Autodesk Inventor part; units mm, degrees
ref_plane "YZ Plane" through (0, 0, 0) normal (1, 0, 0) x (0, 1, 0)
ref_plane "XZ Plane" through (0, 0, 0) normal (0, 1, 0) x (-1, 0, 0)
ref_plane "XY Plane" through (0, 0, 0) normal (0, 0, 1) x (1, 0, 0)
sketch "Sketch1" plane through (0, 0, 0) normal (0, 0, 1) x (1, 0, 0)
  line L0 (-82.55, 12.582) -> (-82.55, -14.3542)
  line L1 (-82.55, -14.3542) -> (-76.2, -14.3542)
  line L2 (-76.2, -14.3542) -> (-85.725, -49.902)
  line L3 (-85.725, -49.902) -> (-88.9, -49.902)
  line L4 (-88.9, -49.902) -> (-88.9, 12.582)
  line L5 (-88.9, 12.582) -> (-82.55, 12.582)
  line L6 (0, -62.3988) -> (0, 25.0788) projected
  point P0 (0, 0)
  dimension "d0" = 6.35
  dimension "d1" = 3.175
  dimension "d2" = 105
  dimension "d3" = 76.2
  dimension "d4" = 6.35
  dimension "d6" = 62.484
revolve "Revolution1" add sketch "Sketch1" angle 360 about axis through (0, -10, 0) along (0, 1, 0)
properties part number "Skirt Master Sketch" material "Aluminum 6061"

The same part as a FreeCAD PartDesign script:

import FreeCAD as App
import Part
import Sketcher

V = App.Vector
Q = App.Units.Quantity

doc = App.newDocument("Part")
body = doc.addObject("PartDesign::Body", "Body")

sketch1 = body.newObject("Sketcher::SketchObject", "Sketch")
sketch1.AttachmentSupport = (doc.getObject("XY_Plane"), [""])
sketch1.MapMode = "FlatFace"
sketch1.addGeometry([
    Part.LineSegment(V(-82.5, -14.4, 0), V(-82.5, 12.6, 0)),
    Part.LineSegment(V(-82.5, 12.6, 0), V(-88.9, 12.6, 0)),
    Part.LineSegment(V(-88.9, 12.6, 0), V(-88.9, -49.9, 0)),
    Part.LineSegment(V(-88.9, -49.9, 0), V(-85.7, -49.9, 0)),
    Part.LineSegment(V(-85.7, -49.9, 0), V(-76.2, -14.4, 0)),
    Part.LineSegment(V(-76.2, -14.4, 0), V(-82.5, -14.4, 0)),
], False)
sketch1.addConstraint([
    Sketcher.Constraint("Coincident", 0, 2, 1, 1),
    Sketcher.Constraint("Coincident", 1, 2, 2, 1),
    Sketcher.Constraint("Coincident", 2, 2, 3, 1),
    Sketcher.Constraint("Coincident", 3, 2, 4, 1),
    Sketcher.Constraint("Coincident", 4, 2, 5, 1),
    Sketcher.Constraint("Coincident", 5, 2, 0, 1),
    Sketcher.Constraint("Vertical", 0),
    Sketcher.Constraint("Horizontal", 1),
    Sketcher.Constraint("Vertical", 2),
    Sketcher.Constraint("Horizontal", 3),
    Sketcher.Constraint("Horizontal", 5),
    Sketcher.Constraint("Equal", 1, 5),
    Sketcher.Constraint("DistanceX", 4, 2, -1, 1, Q("3 in")),
    Sketcher.Constraint("DistanceX", 1, 2, 1, 1, Q("0.25 in")),
    Sketcher.Constraint("DistanceY", 2, 2, 2, 1, Q("2.46 in")),
    Sketcher.Constraint("DistanceX", 3, 1, 3, 2, Q("0.125 in")),
    Sketcher.Constraint("Angle", 4, Q("75 deg")),
    Sketcher.Constraint("DistanceY", -1, 1, 0, 2, 12.582),
])
revolution = body.newObject("PartDesign::Revolution", "Revolution")
revolution.Profile = sketch1
revolution.ReferenceAxis = (sketch1, ["V_Axis"])
revolution.Angle = 360

doc.recompute()
